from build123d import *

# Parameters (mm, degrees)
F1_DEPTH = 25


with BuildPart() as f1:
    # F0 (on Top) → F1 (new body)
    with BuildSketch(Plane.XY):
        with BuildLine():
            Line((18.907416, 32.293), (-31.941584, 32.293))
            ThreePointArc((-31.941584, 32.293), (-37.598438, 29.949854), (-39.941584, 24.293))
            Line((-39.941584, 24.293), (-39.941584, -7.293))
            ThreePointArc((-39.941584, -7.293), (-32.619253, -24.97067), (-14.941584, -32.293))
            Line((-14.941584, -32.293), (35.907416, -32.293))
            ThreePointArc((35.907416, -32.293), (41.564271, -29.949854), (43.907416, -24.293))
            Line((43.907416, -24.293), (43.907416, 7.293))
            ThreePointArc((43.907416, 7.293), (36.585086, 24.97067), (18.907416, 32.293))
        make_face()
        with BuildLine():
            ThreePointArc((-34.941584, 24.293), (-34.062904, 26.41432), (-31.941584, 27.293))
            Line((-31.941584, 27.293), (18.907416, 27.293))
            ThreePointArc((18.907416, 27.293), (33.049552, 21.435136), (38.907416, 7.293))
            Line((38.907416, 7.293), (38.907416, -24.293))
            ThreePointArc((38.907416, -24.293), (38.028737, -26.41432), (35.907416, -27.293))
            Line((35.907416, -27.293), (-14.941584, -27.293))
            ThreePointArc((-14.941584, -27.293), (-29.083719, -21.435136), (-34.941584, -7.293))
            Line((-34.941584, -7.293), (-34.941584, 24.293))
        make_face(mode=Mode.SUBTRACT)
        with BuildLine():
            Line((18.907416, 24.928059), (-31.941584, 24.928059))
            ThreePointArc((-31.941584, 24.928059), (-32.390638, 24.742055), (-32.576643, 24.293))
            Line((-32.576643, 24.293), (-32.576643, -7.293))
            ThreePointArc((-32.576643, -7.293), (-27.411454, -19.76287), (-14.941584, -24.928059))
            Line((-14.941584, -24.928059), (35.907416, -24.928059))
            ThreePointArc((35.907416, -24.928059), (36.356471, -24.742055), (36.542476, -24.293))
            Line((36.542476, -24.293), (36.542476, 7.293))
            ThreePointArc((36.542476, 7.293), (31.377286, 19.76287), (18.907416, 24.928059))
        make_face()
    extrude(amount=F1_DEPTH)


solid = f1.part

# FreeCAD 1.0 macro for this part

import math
import FreeCAD as App
import Part
import Sketcher

V = App.Vector

doc = App.newDocument("Part")
body = doc.addObject("PartDesign::Body", "Body")
body.AllowCompound = True

sketch1 = doc.addObject("Sketcher::SketchObject", "Sketch")
body.addObject(sketch1)
sketch1.AttachmentSupport = (doc.XY_Plane, [""])
sketch1.MapMode = "FlatFace"
sketch1.addGeometry(Part.LineSegment(V(18.9, 32.3, 0), V(-31.9, 32.3, 0)), False)
sketch1.addGeometry(Part.ArcOfCircle(Part.Circle(V(-31.9, 24.3, 0), V(0, 0, 1), 8), math.radians(90), math.radians(180)), False)
sketch1.addGeometry(Part.LineSegment(V(-39.9, 24.3, 0), V(-39.9, -7.3, 0)), False)
sketch1.addGeometry(Part.ArcOfCircle(Part.Circle(V(-14.9, -7.3, 0), V(0, 0, 1), 25), math.radians(-180), math.radians(-90)), False)
sketch1.addGeometry(Part.LineSegment(V(-14.9, -32.3, 0), V(35.9, -32.3, 0)), False)
sketch1.addGeometry(Part.ArcOfCircle(Part.Circle(V(35.9, -24.3, 0), V(0, 0, 1), 8), math.radians(-90), math.radians(0)), False)
sketch1.addGeometry(Part.LineSegment(V(43.9, -24.3, 0), V(43.9, 7.3, 0)), False)
sketch1.addGeometry(Part.ArcOfCircle(Part.Circle(V(18.9, 7.3, 0), V(0, 0, 1), 25), math.radians(0), math.radians(90)), False)
sketch1.addGeometry(Part.LineSegment(V(-34.9, -7.3, 0), V(-34.9, 24.3, 0)), False)
sketch1.addGeometry(Part.ArcOfCircle(Part.Circle(V(-31.9, 24.3, 0), V(0, 0, 1), 3), math.radians(90), math.radians(180)), False)
sketch1.addGeometry(Part.LineSegment(V(-31.9, 27.3, 0), V(18.9, 27.3, 0)), False)
sketch1.addGeometry(Part.ArcOfCircle(Part.Circle(V(18.9, 7.3, 0), V(0, 0, 1), 20), math.radians(0), math.radians(90)), False)
sketch1.addGeometry(Part.LineSegment(V(38.9, 7.3, 0), V(38.9, -24.3, 0)), False)
sketch1.addGeometry(Part.ArcOfCircle(Part.Circle(V(35.9, -24.3, 0), V(0, 0, 1), 3), math.radians(-90), math.radians(0)), False)
sketch1.addGeometry(Part.LineSegment(V(35.9, -27.3, 0), V(-14.9, -27.3, 0)), False)
sketch1.addGeometry(Part.ArcOfCircle(Part.Circle(V(-14.9, -7.3, 0), V(0, 0, 1), 20), math.radians(-180), math.radians(-90)), False)
sketch1.addGeometry(Part.LineSegment(V(18.9, 24.9, 0), V(-31.9, 24.9, 0)), False)
sketch1.addGeometry(Part.ArcOfCircle(Part.Circle(V(-31.9, 24.3, 0), V(0, 0, 1), 0.6), math.radians(90), math.radians(180)), False)
sketch1.addGeometry(Part.LineSegment(V(-32.6, 24.3, 0), V(-32.6, -7.3, 0)), False)
sketch1.addGeometry(Part.ArcOfCircle(Part.Circle(V(-14.9, -7.3, 0), V(0, 0, 1), 17.6), math.radians(180), math.radians(270)), False)
sketch1.addGeometry(Part.LineSegment(V(-14.9, -24.9, 0), V(35.9, -24.9, 0)), False)
sketch1.addGeometry(Part.ArcOfCircle(Part.Circle(V(35.9, -24.3, 0), V(0, 0, 1), 0.6), math.radians(-90), math.radians(0)), False)
sketch1.addGeometry(Part.LineSegment(V(36.5, -24.3, 0), V(36.5, 7.3, 0)), False)
sketch1.addGeometry(Part.ArcOfCircle(Part.Circle(V(18.9, 7.3, 0), V(0, 0, 1), 17.6), math.radians(0), math.radians(90)), False)
sketch1.addConstraint(Sketcher.Constraint("Tangent", 0, 2, 1, 1))
sketch1.addConstraint(Sketcher.Constraint("Tangent", 1, 2, 2, 1))
sketch1.addConstraint(Sketcher.Constraint("Tangent", 2, 2, 3, 1))
sketch1.addConstraint(Sketcher.Constraint("Tangent", 3, 2, 4, 1))
sketch1.addConstraint(Sketcher.Constraint("Tangent", 4, 2, 5, 1))
sketch1.addConstraint(Sketcher.Constraint("Tangent", 5, 2, 6, 1))
sketch1.addConstraint(Sketcher.Constraint("Tangent", 6, 2, 7, 1))
sketch1.addConstraint(Sketcher.Constraint("Tangent", 7, 2, 0, 1))
sketch1.addConstraint(Sketcher.Constraint("Tangent", 8, 2, 9, 2))
sketch1.addConstraint(Sketcher.Constraint("Tangent", 9, 1, 10, 1))
sketch1.addConstraint(Sketcher.Constraint("Tangent", 10, 2, 11, 2))
sketch1.addConstraint(Sketcher.Constraint("Tangent", 11, 1, 12, 1))
sketch1.addConstraint(Sketcher.Constraint("Tangent", 12, 2, 13, 2))
sketch1.addConstraint(Sketcher.Constraint("Tangent", 13, 1, 14, 1))
sketch1.addConstraint(Sketcher.Constraint("Tangent", 14, 2, 15, 2))
sketch1.addConstraint(Sketcher.Constraint("Tangent", 15, 1, 8, 1))
sketch1.addConstraint(Sketcher.Constraint("Tangent", 16, 2, 17, 1))
sketch1.addConstraint(Sketcher.Constraint("Tangent", 17, 2, 18, 1))
sketch1.addConstraint(Sketcher.Constraint("Tangent", 18, 2, 19, 1))
sketch1.addConstraint(Sketcher.Constraint("Tangent", 19, 2, 20, 1))
sketch1.addConstraint(Sketcher.Constraint("Tangent", 20, 2, 21, 1))
sketch1.addConstraint(Sketcher.Constraint("Tangent", 21, 2, 22, 1))
sketch1.addConstraint(Sketcher.Constraint("Tangent", 22, 2, 23, 1))
sketch1.addConstraint(Sketcher.Constraint("Tangent", 23, 2, 16, 1))
sketch1.addConstraint(Sketcher.Constraint("Horizontal", 0))
sketch1.addConstraint(Sketcher.Constraint("Vertical", 2))
sketch1.addConstraint(Sketcher.Constraint("Horizontal", 4))
sketch1.addConstraint(Sketcher.Constraint("Vertical", 6))
sketch1.addConstraint(Sketcher.Constraint("Vertical", 8))
sketch1.addConstraint(Sketcher.Constraint("Horizontal", 10))
sketch1.addConstraint(Sketcher.Constraint("Vertical", 12))
sketch1.addConstraint(Sketcher.Constraint("Horizontal", 14))
sketch1.addConstraint(Sketcher.Constraint("Horizontal", 16))
sketch1.addConstraint(Sketcher.Constraint("Vertical", 18))
sketch1.addConstraint(Sketcher.Constraint("Horizontal", 20))
sketch1.addConstraint(Sketcher.Constraint("Vertical", 22))
sketch1.addConstraint(Sketcher.Constraint("Coincident", 9, 3, 1, 3))
sketch1.addConstraint(Sketcher.Constraint("Coincident", 11, 3, 7, 3))
sketch1.addConstraint(Sketcher.Constraint("Coincident", 13, 3, 5, 3))
sketch1.addConstraint(Sketcher.Constraint("Coincident", 17, 3, 1, 3))
sketch1.addConstraint(Sketcher.Constraint("Coincident", 19, 3, 3, 3))
sketch1.addConstraint(Sketcher.Constraint("Coincident", 21, 3, 5, 3))
sketch1.addConstraint(Sketcher.Constraint("Equal", 1, 5))
sketch1.addConstraint(Sketcher.Constraint("Equal", 3, 7))
sketch1.addConstraint(Sketcher.Constraint("Equal", 11, 15))
sketch1.addConstraint(Sketcher.Constraint("Equal", 19, 23))
sketch1.addConstraint(Sketcher.Constraint("Radius", 1, 8.000001))
sketch1.addConstraint(Sketcher.Constraint("Radius", 3, 25.0))
sketch1.addConstraint(Sketcher.Constraint("Radius", 9, 3.000001))
sketch1.addConstraint(Sketcher.Constraint("DistanceX", 0, 2, 0, 1, 50.849))
sketch1.addConstraint(Sketcher.Constraint("DistanceY", 2, 2, 2, 1, 31.586))
sketch1.addConstraint(Sketcher.Constraint("Radius", 17, 0.635059))
sketch1.addConstraint(Sketcher.Constraint("DistanceY", -1, 1, 1, 3, 24.292999))
sketch1.addConstraint(Sketcher.Constraint("DistanceX", 1, 3, -1, 1, 31.941583))
pad1 = doc.addObject("PartDesign::Pad", "Pad")
body.addObject(pad1)
pad1.Profile = sketch1
pad1.Length = 25

doc.recompute()
